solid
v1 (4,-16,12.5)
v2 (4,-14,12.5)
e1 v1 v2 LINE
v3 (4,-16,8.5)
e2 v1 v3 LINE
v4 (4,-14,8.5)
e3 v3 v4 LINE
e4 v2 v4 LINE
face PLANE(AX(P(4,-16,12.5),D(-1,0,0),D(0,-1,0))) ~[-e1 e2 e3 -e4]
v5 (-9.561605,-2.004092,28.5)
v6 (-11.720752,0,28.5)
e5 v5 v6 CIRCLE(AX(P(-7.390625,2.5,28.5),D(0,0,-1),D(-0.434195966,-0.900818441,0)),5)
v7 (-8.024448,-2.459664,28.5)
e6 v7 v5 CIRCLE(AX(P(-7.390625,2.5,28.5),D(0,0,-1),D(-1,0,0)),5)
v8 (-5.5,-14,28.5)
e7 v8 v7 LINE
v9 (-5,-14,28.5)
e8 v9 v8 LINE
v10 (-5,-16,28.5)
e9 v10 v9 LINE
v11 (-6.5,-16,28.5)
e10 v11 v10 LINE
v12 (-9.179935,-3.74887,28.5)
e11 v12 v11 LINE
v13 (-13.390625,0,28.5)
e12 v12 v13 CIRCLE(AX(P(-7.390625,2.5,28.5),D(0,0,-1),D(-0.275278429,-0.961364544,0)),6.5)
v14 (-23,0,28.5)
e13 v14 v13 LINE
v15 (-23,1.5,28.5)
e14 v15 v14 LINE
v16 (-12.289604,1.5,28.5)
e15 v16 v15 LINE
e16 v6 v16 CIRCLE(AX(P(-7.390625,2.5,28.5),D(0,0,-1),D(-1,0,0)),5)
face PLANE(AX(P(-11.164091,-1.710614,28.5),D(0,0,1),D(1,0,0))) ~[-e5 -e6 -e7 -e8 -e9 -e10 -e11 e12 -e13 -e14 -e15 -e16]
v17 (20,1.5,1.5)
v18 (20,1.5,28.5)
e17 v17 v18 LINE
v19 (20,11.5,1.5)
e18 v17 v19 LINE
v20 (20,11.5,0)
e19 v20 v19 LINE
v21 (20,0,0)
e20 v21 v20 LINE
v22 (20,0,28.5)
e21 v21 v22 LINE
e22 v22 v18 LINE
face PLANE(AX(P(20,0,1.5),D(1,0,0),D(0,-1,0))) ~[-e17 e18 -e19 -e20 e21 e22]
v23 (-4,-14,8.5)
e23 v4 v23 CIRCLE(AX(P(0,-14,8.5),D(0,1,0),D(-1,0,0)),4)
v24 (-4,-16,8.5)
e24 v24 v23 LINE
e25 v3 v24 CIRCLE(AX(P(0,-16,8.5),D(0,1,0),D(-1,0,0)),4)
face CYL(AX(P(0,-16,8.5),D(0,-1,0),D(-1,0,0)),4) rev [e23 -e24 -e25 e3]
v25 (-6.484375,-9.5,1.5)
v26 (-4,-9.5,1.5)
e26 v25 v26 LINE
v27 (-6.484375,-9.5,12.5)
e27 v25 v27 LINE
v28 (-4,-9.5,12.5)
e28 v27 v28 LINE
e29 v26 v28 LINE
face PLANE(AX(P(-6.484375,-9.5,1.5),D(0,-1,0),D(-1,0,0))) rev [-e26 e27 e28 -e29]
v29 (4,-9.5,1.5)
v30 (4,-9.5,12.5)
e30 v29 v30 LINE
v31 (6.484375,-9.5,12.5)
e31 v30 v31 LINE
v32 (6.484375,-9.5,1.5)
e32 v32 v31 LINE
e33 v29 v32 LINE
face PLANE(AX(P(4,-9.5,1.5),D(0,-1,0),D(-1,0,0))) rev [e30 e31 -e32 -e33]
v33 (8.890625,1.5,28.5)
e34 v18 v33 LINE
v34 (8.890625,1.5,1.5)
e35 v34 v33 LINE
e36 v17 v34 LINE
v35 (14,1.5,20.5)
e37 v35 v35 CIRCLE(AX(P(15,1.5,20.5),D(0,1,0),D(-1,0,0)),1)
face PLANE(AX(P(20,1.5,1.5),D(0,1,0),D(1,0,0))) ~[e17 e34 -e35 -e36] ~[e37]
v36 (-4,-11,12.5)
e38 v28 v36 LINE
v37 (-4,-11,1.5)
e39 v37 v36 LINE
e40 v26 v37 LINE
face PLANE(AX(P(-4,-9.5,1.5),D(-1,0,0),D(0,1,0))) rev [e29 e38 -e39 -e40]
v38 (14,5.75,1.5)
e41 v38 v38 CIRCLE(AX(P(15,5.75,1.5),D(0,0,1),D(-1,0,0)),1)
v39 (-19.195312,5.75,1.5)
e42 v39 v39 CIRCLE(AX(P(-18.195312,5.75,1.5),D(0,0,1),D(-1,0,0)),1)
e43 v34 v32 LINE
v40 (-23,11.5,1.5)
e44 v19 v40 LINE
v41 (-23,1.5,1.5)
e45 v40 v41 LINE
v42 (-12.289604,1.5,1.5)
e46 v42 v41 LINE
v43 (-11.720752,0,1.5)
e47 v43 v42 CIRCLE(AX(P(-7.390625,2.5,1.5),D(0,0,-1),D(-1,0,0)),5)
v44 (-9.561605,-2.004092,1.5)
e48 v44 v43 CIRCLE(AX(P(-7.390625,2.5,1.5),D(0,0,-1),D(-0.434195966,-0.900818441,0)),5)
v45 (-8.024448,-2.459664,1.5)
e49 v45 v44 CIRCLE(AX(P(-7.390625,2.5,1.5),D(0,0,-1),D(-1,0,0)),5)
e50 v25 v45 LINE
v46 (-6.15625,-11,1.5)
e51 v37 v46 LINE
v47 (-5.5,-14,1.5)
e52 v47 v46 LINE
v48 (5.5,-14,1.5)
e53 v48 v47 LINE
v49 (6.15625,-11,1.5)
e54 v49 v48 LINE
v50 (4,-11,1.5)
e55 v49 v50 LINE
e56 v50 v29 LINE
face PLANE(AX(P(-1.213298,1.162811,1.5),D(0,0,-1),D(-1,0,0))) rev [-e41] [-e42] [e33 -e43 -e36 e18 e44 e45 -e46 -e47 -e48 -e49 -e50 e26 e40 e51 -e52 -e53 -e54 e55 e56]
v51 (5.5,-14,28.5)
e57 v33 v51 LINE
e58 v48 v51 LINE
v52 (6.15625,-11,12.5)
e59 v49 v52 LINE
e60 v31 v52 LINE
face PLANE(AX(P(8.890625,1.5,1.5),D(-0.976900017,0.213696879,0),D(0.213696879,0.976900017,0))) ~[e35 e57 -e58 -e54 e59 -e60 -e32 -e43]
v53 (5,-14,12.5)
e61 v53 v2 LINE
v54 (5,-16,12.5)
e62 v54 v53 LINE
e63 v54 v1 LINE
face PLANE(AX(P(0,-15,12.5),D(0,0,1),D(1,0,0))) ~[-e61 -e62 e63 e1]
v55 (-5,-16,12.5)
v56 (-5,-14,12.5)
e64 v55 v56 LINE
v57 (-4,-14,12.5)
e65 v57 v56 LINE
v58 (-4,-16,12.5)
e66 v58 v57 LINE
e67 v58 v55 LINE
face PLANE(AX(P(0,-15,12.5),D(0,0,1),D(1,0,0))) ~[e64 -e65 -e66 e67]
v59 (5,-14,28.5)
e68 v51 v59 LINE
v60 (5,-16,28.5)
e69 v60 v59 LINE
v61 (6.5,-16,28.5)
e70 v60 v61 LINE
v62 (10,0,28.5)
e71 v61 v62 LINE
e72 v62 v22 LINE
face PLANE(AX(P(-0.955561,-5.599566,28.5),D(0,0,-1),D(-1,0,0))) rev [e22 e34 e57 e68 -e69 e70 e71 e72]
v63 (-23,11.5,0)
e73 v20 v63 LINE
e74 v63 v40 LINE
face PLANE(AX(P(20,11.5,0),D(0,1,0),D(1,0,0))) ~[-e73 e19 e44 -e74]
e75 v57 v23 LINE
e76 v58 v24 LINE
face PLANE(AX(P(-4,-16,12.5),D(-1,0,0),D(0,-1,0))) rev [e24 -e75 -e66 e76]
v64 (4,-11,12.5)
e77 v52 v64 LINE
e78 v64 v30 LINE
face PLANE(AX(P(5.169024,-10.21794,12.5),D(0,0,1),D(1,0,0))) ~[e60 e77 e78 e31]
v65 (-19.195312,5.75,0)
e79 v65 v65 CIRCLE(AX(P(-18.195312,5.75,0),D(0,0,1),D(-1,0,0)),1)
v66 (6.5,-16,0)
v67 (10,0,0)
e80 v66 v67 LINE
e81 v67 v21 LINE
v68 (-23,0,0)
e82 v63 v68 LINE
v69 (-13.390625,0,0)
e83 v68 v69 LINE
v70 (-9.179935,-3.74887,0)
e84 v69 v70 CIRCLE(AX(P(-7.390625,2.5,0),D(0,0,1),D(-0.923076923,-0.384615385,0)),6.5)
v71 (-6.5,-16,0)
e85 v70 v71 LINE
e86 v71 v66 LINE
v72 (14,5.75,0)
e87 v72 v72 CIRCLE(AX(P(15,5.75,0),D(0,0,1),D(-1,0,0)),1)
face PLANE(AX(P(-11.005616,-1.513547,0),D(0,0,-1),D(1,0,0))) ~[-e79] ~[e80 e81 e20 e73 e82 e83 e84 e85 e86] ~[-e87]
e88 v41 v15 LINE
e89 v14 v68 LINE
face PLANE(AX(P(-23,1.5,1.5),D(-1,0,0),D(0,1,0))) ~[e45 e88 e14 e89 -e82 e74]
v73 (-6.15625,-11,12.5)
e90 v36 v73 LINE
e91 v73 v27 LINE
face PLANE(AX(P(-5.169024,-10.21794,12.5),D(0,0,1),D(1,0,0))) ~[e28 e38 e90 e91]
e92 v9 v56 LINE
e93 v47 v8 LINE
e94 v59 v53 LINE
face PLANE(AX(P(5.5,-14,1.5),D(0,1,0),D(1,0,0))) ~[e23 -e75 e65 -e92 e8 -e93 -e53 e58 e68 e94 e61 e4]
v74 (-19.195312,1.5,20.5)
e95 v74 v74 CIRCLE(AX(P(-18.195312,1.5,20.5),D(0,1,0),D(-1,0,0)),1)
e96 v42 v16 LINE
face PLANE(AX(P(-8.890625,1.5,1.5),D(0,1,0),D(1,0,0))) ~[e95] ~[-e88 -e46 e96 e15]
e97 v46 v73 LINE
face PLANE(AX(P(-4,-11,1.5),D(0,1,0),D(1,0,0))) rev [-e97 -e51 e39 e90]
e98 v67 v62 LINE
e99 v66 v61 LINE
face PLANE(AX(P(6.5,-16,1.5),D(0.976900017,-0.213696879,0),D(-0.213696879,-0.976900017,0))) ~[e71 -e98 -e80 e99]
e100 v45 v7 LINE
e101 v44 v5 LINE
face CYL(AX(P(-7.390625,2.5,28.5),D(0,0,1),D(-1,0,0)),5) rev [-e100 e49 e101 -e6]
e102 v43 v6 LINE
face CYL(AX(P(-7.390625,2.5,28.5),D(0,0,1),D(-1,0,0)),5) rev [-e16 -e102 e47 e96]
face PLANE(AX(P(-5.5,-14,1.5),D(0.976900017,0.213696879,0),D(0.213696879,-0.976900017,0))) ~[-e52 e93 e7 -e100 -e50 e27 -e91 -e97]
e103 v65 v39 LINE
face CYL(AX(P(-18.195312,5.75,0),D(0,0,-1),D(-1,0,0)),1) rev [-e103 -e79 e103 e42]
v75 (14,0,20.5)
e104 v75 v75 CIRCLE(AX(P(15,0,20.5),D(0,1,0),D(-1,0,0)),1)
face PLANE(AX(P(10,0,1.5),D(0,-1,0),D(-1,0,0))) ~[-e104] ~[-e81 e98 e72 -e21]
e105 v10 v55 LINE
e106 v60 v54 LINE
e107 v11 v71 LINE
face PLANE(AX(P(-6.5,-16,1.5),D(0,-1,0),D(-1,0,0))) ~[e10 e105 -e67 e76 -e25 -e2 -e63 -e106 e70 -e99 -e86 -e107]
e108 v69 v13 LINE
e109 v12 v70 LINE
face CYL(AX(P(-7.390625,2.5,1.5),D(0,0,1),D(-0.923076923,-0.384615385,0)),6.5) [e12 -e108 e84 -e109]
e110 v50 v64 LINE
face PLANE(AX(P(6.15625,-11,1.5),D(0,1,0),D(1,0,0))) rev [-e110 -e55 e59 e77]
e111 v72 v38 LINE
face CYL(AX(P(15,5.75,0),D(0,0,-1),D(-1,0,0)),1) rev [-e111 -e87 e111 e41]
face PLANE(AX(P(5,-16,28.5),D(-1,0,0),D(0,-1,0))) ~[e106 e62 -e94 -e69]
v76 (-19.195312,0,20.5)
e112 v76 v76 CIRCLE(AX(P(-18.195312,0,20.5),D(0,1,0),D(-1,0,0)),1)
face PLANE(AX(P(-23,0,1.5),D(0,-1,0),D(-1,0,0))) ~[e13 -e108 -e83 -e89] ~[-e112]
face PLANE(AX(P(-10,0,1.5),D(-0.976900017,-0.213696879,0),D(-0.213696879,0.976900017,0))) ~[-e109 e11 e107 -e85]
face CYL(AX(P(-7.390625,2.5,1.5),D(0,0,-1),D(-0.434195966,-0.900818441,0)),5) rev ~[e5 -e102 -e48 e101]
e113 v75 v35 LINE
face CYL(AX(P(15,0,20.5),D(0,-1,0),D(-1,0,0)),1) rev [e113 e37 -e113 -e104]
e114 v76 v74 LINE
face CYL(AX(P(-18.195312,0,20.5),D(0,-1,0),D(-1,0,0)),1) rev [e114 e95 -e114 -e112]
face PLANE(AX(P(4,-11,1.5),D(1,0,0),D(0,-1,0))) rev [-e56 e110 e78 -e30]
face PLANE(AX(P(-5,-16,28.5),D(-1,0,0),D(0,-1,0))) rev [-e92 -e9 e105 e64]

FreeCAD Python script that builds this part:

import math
import FreeCAD as App
import Part
import Sketcher


def add_polygon(sketch, points):
    """Adds a closed chain of lines whose ends are joined by coincident constraints."""
    first, n = sketch.GeometryCount, len(points)
    for a, b in zip(points, points[1:] + points[:1]):
        sketch.addGeometry(Part.LineSegment(App.Vector(*a, 0), App.Vector(*b, 0)), False)
    for i in range(n):
        sketch.addConstraint(Sketcher.Constraint("Coincident", first + i, 2, first + (i + 1) % n, 1))

doc = App.newDocument("Part")
body = doc.addObject("PartDesign::Body", "Body")

# Sketch on XY plane
sketch1 = body.newObject("Sketcher::SketchObject", "Sketch")
sketch1.AttachmentSupport = (doc.getObject("XY_Plane"), [""])
sketch1.MapMode = "FlatFace"
add_polygon(sketch1, [(23, 12), (-20, 12), (-20, 0), (-10, 0), (-6, -16), (6, -16), (10, 0), (23, 0)])  # lines 0-7
sketch1.addConstraint(Sketcher.Constraint("Horizontal", 0))
sketch1.addConstraint(Sketcher.Constraint("Vertical", 1))
sketch1.addConstraint(Sketcher.Constraint("Horizontal", 2))
sketch1.addConstraint(Sketcher.Constraint("Horizontal", 4))
sketch1.addConstraint(Sketcher.Constraint("Horizontal", 6))
sketch1.addConstraint(Sketcher.Constraint("Vertical", 7))
sketch1.addConstraint(Sketcher.Constraint("Symmetric", 2, 2, 5, 2, -1, 1))
sketch1.addConstraint(Sketcher.Constraint("PointOnObject", 1, 2, -1))
sketch1.addConstraint(Sketcher.Constraint("Equal", 4, 6))
sketch1.addConstraint(Sketcher.Constraint("Equal", 3, 5))
sketch1.addConstraint(Sketcher.Constraint("DistanceX", 0, 2, 0, 1, 43.0))
sketch1.addConstraint(Sketcher.Constraint("DistanceX", 2, 1, 2, 2, 10.0))
sketch1.addConstraint(Sketcher.Constraint("DistanceX", 4, 1, 4, 2, 13.0))
sketch1.addConstraint(Sketcher.Constraint("DistanceY", 1, 2, 1, 1, 11.5))
sketch1.addConstraint(Sketcher.Constraint("DistanceY", 3, 2, -1, 1, 16.0))
pad1 = body.newObject("PartDesign::Pad", "Pad")
pad1.Profile = sketch1
pad1.Length = 1.5

# Sketch on XY plane
sketch2 = body.newObject("Sketcher::SketchObject", "Sketch001")
sketch2.AttachmentSupport = (doc.getObject("XY_Plane"), [""])
sketch2.MapMode = "FlatFace"
sketch2.AttachmentOffset = App.Placement(App.Vector(0, 0, 1.5), App.Rotation())
add_polygon(sketch2, [(-20, 1.5), (-20, 0), (-10, 0), (-6.5, -16), (6.5, -16), (10, 0), (23, 0), (23, 1.5), (8.9, 1.5), (5.5, -14), (-5.5, -14), (-8.9, 1.5)])  # lines 0-11
sketch2.addConstraint(Sketcher.Constraint("Vertical", 0))
sketch2.addConstraint(Sketcher.Constraint("Horizontal", 1))
sketch2.addConstraint(Sketcher.Constraint("Horizontal", 3))
sketch2.addConstraint(Sketcher.Constraint("Horizontal", 5))
sketch2.addConstraint(Sketcher.Constraint("Vertical", 6))
sketch2.addConstraint(Sketcher.Constraint("Horizontal", 7))
sketch2.addConstraint(Sketcher.Constraint("Horizontal", 9))
sketch2.addConstraint(Sketcher.Constraint("Horizontal", 11))
sketch2.addConstraint(Sketcher.Constraint("Symmetric", 1, 2, 4, 2, -1, 1))
sketch2.addConstraint(Sketcher.Constraint("Symmetric", 7, 2, 10, 2, -2))
sketch2.addConstraint(Sketcher.Constraint("PointOnObject", 0, 2, -1))
sketch2.addConstraint(Sketcher.Constraint("Parallel", 4, 8))
sketch2.addConstraint(Sketcher.Constraint("Parallel", 2, 10))
sketch2.addConstraint(Sketcher.Constraint("Equal", 3, 5))
sketch2.addConstraint(Sketcher.Constraint("Equal", 2, 4))
sketch2.addConstraint(Sketcher.Constraint("DistanceX", 1, 1, 1, 2, 10.0))
sketch2.addConstraint(Sketcher.Constraint("DistanceX", 3, 1, 3, 2, 13.0))
sketch2.addConstraint(Sketcher.Constraint("DistanceX", 9, 2, 9, 1, 11.0))
sketch2.addConstraint(Sketcher.Constraint("DistanceY", 0, 2, 0, 1, 1.5))
sketch2.addConstraint(Sketcher.Constraint("DistanceX", 0, 2, -1, 1, 20.0))
sketch2.addConstraint(Sketcher.Constraint("DistanceY", 2, 2, -1, 1, 16.0))
sketch2.addConstraint(Sketcher.Constraint("DistanceY", 8, 2, -1, 1, 14.0))
pad2 = body.newObject("PartDesign::Pad", "Pad001")
pad2.Profile = sketch2
pad2.Length = 27

# Sketch on XY plane
sketch3 = body.newObject("Sketcher::SketchObject", "Sketch002")
sketch3.AttachmentSupport = (doc.getObject("XY_Plane"), [""])
sketch3.MapMode = "FlatFace"
sketch3.AttachmentOffset = App.Placement(App.Vector(0, 0, 1.5), App.Rotation())
add_polygon(sketch3, [(-6.2, -11), (-4, -11), (-4, -9.5), (-6.5, -9.5)])  # lines 0-3
add_polygon(sketch3, [(6.5, -9.5), (4, -9.5), (4, -11), (6.2, -11)])  # lines 4-7
sketch3.addConstraint(Sketcher.Constraint("Horizontal", 0))
sketch3.addConstraint(Sketcher.Constraint("Vertical", 1))
sketch3.addConstraint(Sketcher.Constraint("Horizontal", 2))
sketch3.addConstraint(Sketcher.Constraint("Horizontal", 4))
sketch3.addConstraint(Sketcher.Constraint("Vertical", 5))
sketch3.addConstraint(Sketcher.Constraint("Horizontal", 6))
sketch3.addConstraint(Sketcher.Constraint("Symmetric", 1, 2, 4, 2, -2))
sketch3.addConstraint(Sketcher.Constraint("Symmetric", 3, 2, 6, 2, -2))
sketch3.addConstraint(Sketcher.Constraint("Equal", 2, 4))
sketch3.addConstraint(Sketcher.Constraint("DistanceY", 1, 1, 1, 2, 1.5))
sketch3.addConstraint(Sketcher.Constraint("DistanceX", 0, 2, -1, 1, 4.0))
sketch3.addConstraint(Sketcher.Constraint("DistanceY", 0, 2, -1, 1, 11.0))
sketch3.addConstraint(Sketcher.Constraint("DistanceX", 0, 1, 0, 2, 2.15625))
sketch3.addConstraint(Sketcher.Constraint("Distance", 3, 1.535469))
pad3 = body.newObject("PartDesign::Pad", "Pad002")
pad3.Profile = sketch3
pad3.Length = 11

# Sketch on XY plane
sketch4 = body.newObject("Sketcher::SketchObject", "Sketch003")
sketch4.AttachmentSupport = (doc.getObject("XY_Plane"), [""])
sketch4.MapMode = "FlatFace"
sketch4.AttachmentOffset = App.Placement(App.Vector(0, 0, 28.5), App.Rotation())
add_polygon(sketch4, [(-5, -14), (-5, -16), (5, -16), (5, -14)])  # lines 0-3
sketch4.addConstraint(Sketcher.Constraint("Vertical", 0))
sketch4.addConstraint(Sketcher.Constraint("Horizontal", 1))
sketch4.addConstraint(Sketcher.Constraint("Vertical", 2))
sketch4.addConstraint(Sketcher.Constraint("Horizontal", 3))
sketch4.addConstraint(Sketcher.Constraint("DistanceX", 1, 1, 1, 2, 10.0))
sketch4.addConstraint(Sketcher.Constraint("DistanceY", 0, 2, 0, 1, 2.0))
sketch4.addConstraint(Sketcher.Constraint("DistanceX", 0, 2, -1, 1, 5.0))
sketch4.addConstraint(Sketcher.Constraint("DistanceY", 0, 2, -1, 1, 16.0))
pocket1 = body.newObject("PartDesign::Pocket", "Pocket")
pocket1.Profile = sketch4
pocket1.Length = 16

# Sketch on XY plane
sketch5 = body.newObject("Sketcher::SketchObject", "Sketch004")
sketch5.AttachmentSupport = (doc.getObject("XY_Plane"), [""])
sketch5.MapMode = "FlatFace"
sketch5.AttachmentOffset = App.Placement(App.Vector(0, 0, 12.5), App.Rotation())
add_polygon(sketch5, [(-4, -14), (-4, -16), (4, -16), (4, -14)])  # lines 0-3
sketch5.addConstraint(Sketcher.Constraint("Vertical", 0))
sketch5.addConstraint(Sketcher.Constraint("Horizontal", 1))
sketch5.addConstraint(Sketcher.Constraint("Vertical", 2))
sketch5.addConstraint(Sketcher.Constraint("Horizontal", 3))
sketch5.addConstraint(Sketcher.Constraint("DistanceX", 1, 1, 1, 2, 8.0))
sketch5.addConstraint(Sketcher.Constraint("DistanceY", 0, 2, 0, 1, 2.0))
sketch5.addConstraint(Sketcher.Constraint("DistanceX", 0, 2, -1, 1, 4.0))
sketch5.addConstraint(Sketcher.Constraint("DistanceY", 0, 2, -1, 1, 16.0))
pocket2 = body.newObject("PartDesign::Pocket", "Pocket001")
pocket2.Profile = sketch5
pocket2.Length = 4

# Sketch on XZ plane
sketch6 = body.newObject("Sketcher::SketchObject", "Sketch005")
sketch6.AttachmentSupport = (doc.getObject("XZ_Plane"), [""])
sketch6.MapMode = "FlatFace"
sketch6.AttachmentOffset = App.Placement(App.Vector(0, 0, 16), App.Rotation())
sketch6.addGeometry(Part.Circle(App.Vector(0, 8.5, 0), App.Vector(0, 0, 1), 4), False)
sketch6.addConstraint(Sketcher.Constraint("PointOnObject", 0, 3, -2))
sketch6.addConstraint(Sketcher.Constraint("Diameter", 0, 8.0))
sketch6.addConstraint(Sketcher.Constraint("DistanceY", -1, 1, 0, 3, 8.5))
pocket3 = body.newObject("PartDesign::Pocket", "Pocket002")
pocket3.Profile = sketch6
pocket3.Length = 2

# Sketch on XY plane
sketch7 = body.newObject("Sketcher::SketchObject", "Sketch006")
sketch7.AttachmentSupport = (doc.getObject("XY_Plane"), [""])
sketch7.MapMode = "FlatFace"
sketch7.AttachmentOffset = App.Placement(App.Vector(0, 0, 28.5), App.Rotation())
sketch7.addGeometry(Part.Circle(App.Vector(7, 2, 0), App.Vector(0, 0, 1), 5), False)
sketch7.addConstraint(Sketcher.Constraint("Diameter", 0, 10.0))
sketch7.addConstraint(Sketcher.Constraint("DistanceY", -1, 1, 0, 3, 2.5))
sketch7.addConstraint(Sketcher.Constraint("DistanceX", -1, 1, 0, 3, 7.390625))
pocket4 = body.newObject("PartDesign::Pocket", "Pocket003")
pocket4.Profile = sketch7
pocket4.Length = 27

# Sketch on XY plane
sketch8 = body.newObject("Sketcher::SketchObject", "Sketch007")
sketch8.AttachmentSupport = (doc.getObject("XY_Plane"), [""])
sketch8.MapMode = "FlatFace"
sketch8.AttachmentOffset = App.Placement(App.Vector(0, 0, 1.5), App.Rotation())
sketch8.addGeometry(Part.ArcOfCircle(Part.Circle(App.Vector(7.4, 2.5, 0), App.Vector(0, 0, 1), 6.5), math.radians(-74), math.radians(-23)), False)
sketch8.addGeometry(Part.LineSegment(App.Vector(13.4, 0, 0), App.Vector(11.7, 0, 0)), False)
sketch8.addGeometry(Part.ArcOfCircle(Part.Circle(App.Vector(7.4, 2.5, 0), App.Vector(0, 0, 1), 5), math.radians(-64), math.radians(-30)), False)
sketch8.addGeometry(Part.LineSegment(App.Vector(9.6, -2, 0), App.Vector(9.2, -3.7, 0)), False)
sketch8.addConstraint(Sketcher.Constraint("Coincident", 0, 2, 1, 1))
sketch8.addConstraint(Sketcher.Constraint("Coincident", 1, 2, 2, 2))
sketch8.addConstraint(Sketcher.Constraint("Coincident", 2, 1, 3, 1))
sketch8.addConstraint(Sketcher.Constraint("Coincident", 3, 2, 0, 1))
sketch8.addConstraint(Sketcher.Constraint("Horizontal", 1))
sketch8.addConstraint(Sketcher.Constraint("Coincident", 2, 3, 0, 3))
sketch8.addConstraint(Sketcher.Constraint("PointOnObject", 0, 2, -1))
sketch8.addConstraint(Sketcher.Constraint("Radius", 2, 5.0))
sketch8.addConstraint(Sketcher.Constraint("Radius", 0, 6.5))
sketch8.addConstraint(Sketcher.Constraint("DistanceX", 2, 3, 0, 2, 6.0))
sketch8.addConstraint(Sketcher.Constraint("DistanceY", 3, 2, -1, 1, 3.74887))
sketch8.addConstraint(Sketcher.Constraint("DistanceX", 2, 1, 0, 2, 3.82902))
sketch8.addConstraint(Sketcher.Constraint("DistanceX", -1, 1, 0, 3, 7.390625))
pad4 = body.newObject("PartDesign::Pad", "Pad003")
pad4.Profile = sketch8
pad4.Length = 27

# Sketch on XY plane
sketch9 = body.newObject("Sketcher::SketchObject", "Sketch008")
sketch9.AttachmentSupport = (doc.getObject("XY_Plane"), [""])
sketch9.MapMode = "FlatFace"
sketch9.AttachmentOffset = App.Placement(App.Vector(0, 0, 1.5), App.Rotation())
sketch9.addGeometry(Part.ArcOfCircle(Part.Circle(App.Vector(7.4, 2.5, 0), App.Vector(0, 0, 1), 6.5), math.radians(-74), math.radians(-23)), False)
sketch9.addGeometry(Part.LineSegment(App.Vector(9.2, -3.7, 0), App.Vector(10, 0, 0)), False)
sketch9.addGeometry(Part.LineSegment(App.Vector(10, 0, 0), App.Vector(13.4, 0, 0)), False)
sketch9.addConstraint(Sketcher.Constraint("Coincident", 0, 1, 1, 1))
sketch9.addConstraint(Sketcher.Constraint("Coincident", 1, 2, 2, 1))
sketch9.addConstraint(Sketcher.Constraint("Coincident", 2, 2, 0, 2))
sketch9.addConstraint(Sketcher.Constraint("Horizontal", 2))
sketch9.addConstraint(Sketcher.Constraint("PointOnObject", 1, 2, -1))
sketch9.addConstraint(Sketcher.Constraint("Radius", 0, 6.5))
sketch9.addConstraint(Sketcher.Constraint("DistanceX", -1, 1, 1, 2, 10.0))
sketch9.addConstraint(Sketcher.Constraint("DistanceX", 0, 3, 2, 2, 6.0))
sketch9.addConstraint(Sketcher.Constraint("DistanceX", 2, 1, 2, 2, 3.390625))
sketch9.addConstraint(Sketcher.Constraint("DistanceY", 0, 1, -1, 1, 3.74887))
pad5 = body.newObject("PartDesign::Pad", "Pad004")
pad5.Profile = sketch9
pad5.Length = 1.5
pad5.Reversed = True

# Sketch on XZ plane
sketch10 = body.newObject("Sketcher::SketchObject", "Sketch009")
sketch10.AttachmentSupport = (doc.getObject("XZ_Plane"), [""])
sketch10.MapMode = "FlatFace"
sketch10.addGeometry(Part.Circle(App.Vector(-15, 20.5, 0), App.Vector(0, 0, 1), 1), False)
sketch10.addGeometry(Part.Circle(App.Vector(18.2, 20.5, 0), App.Vector(0, 0, 1), 1), False)
sketch10.addConstraint(Sketcher.Constraint("Equal", 0, 1))
sketch10.addConstraint(Sketcher.Constraint("Horizontal", 0, 3, 1, 3))
sketch10.addConstraint(Sketcher.Constraint("Diameter", 0, 2.0))
sketch10.addConstraint(Sketcher.Constraint("DistanceX", 0, 3, -1, 1, 15.0))
sketch10.addConstraint(Sketcher.Constraint("DistanceY", -1, 1, 0, 3, 20.5))
sketch10.addConstraint(Sketcher.Constraint("DistanceX", -1, 1, 1, 3, 18.195312))
pocket5 = body.newObject("PartDesign::Pocket", "Pocket004")
pocket5.Profile = sketch10
pocket5.Length = 5

# Sketch on XY plane
sketch11 = body.newObject("Sketcher::SketchObject", "Sketch010")
sketch11.AttachmentSupport = (doc.getObject("XY_Plane"), [""])
sketch11.MapMode = "FlatFace"
sketch11.addGeometry(Part.Circle(App.Vector(-15, 5.8, 0), App.Vector(0, 0, 1), 1), False)
sketch11.addGeometry(Part.Circle(App.Vector(18.2, 5.8, 0), App.Vector(0, 0, 1), 1), False)
sketch11.addConstraint(Sketcher.Constraint("Equal", 0, 1))
sketch11.addConstraint(Sketcher.Constraint("Horizontal", 0, 3, 1, 3))
sketch11.addConstraint(Sketcher.Constraint("Diameter", 0, 2.0))
sketch11.addConstraint(Sketcher.Constraint("DistanceX", 0, 3, -1, 1, 15.0))
sketch11.addConstraint(Sketcher.Constraint("DistanceY", -1, 1, 0, 3, 5.75))
sketch11.addConstraint(Sketcher.Constraint("DistanceX", -1, 1, 1, 3, 18.195312))
pocket6 = body.newObject("PartDesign::Pocket", "Pocket005")
pocket6.Profile = sketch11
pocket6.Length = 5
pocket6.Reversed = True
body2 = doc.addObject("PartDesign::Body", "Body001")
doc.recompute()

mirroring = doc.addObject("Part::Mirroring", "Mirroring")
mirroring.Source = body
mirroring.Base = App.Vector(0, 0, 0)
mirroring.Normal = App.Vector(1, 0, 0)
body2.BaseFeature = mirroring
doc.recompute()
body.Visibility = False
mirroring.Visibility = False

doc.recompute()
